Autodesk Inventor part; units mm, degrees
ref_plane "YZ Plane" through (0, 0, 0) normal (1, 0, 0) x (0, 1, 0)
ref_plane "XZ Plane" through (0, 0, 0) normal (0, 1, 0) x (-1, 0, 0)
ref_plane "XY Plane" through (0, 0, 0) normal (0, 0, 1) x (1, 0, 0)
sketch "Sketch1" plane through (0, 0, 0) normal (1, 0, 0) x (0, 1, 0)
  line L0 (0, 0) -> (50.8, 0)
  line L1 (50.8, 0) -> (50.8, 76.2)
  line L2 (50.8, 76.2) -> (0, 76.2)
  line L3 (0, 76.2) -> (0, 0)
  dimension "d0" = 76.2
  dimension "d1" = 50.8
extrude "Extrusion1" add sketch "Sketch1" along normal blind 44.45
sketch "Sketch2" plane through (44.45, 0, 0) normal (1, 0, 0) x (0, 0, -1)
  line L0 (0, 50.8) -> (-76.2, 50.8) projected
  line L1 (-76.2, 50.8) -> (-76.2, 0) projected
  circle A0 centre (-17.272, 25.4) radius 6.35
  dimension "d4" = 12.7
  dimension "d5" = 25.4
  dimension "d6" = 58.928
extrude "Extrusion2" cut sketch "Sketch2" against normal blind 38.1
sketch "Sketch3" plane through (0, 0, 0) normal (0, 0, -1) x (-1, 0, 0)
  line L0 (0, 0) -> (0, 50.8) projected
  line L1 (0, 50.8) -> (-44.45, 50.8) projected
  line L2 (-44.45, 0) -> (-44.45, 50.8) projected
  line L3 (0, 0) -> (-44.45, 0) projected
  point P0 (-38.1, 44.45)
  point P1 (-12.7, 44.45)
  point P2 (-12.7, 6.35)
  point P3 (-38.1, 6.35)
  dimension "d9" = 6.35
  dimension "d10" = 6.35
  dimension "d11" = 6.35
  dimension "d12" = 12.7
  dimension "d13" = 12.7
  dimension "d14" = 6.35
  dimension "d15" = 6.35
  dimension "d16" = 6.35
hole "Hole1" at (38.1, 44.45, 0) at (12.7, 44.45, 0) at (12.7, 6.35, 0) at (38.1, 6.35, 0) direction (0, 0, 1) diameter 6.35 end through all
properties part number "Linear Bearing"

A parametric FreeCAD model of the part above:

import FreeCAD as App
import Part
import Sketcher

V = App.Vector
Q = App.Units.Quantity


def add_polygon(sketch, points):
    """Adds a closed chain of lines whose ends are joined by coincident constraints."""
    first, n = sketch.GeometryCount, len(points)
    for a, b in zip(points, points[1:] + points[:1]):
        sketch.addGeometry(Part.LineSegment(App.Vector(*a, 0), App.Vector(*b, 0)), False)
    for i in range(n):
        sketch.addConstraint(Sketcher.Constraint("Coincident", first + i, 2, first + (i + 1) % n, 1))

doc = App.newDocument("Part")
params = doc.addObject("Spreadsheet::Sheet", "Params")
for row, (alias, value) in enumerate([
    ("sketch1_width", "2 in"),
    ("sketch1_height", "3 in"),
    ("pad1_length", "1.75 in"),
    ("sketch2_diameter", "0.5 in"),
    ("pocket1_length", "1.5 in"),
    ("sketch3_diameter", "0.25 in"),
    ("hole_diameter", "0.25 in"),
], start=1):
    params.set(f"A{row}", alias)
    params.set(f"B{row}", "=" + value)
    params.setAlias(f"B{row}", alias)

body = doc.addObject("PartDesign::Body", "Body")

sketch1 = doc.addObject("Sketcher::SketchObject", "Sketch")
body.addObject(sketch1)
sketch1.AttachmentSupport = (doc.YZ_Plane, [""])
sketch1.MapMode = "FlatFace"
add_polygon(sketch1, [(0, 76), (0, 0), (51, 0), (51, 76)])
sketch1.addConstraint([
    Sketcher.Constraint("Vertical", 0),
    Sketcher.Constraint("Horizontal", 1),
    Sketcher.Constraint("Vertical", 2),
    Sketcher.Constraint("Horizontal", 3),
    Sketcher.Constraint("Coincident", 0, 2, -1, 1),
    Sketcher.Constraint("DistanceX", 1, 1, 1, 2, Q("2 in")),
    Sketcher.Constraint("DistanceY", 0, 2, 0, 1, Q("3 in")),
])
sketch1.setExpression("Constraints[9]", "Params.sketch1_width")
sketch1.setExpression("Constraints[10]", "Params.sketch1_height")
pad1 = doc.addObject("PartDesign::Pad", "Pad")
body.addObject(pad1)
pad1.Profile = sketch1
pad1.setExpression("Length", "Params.pad1_length")

sketch2 = doc.addObject("Sketcher::SketchObject", "Sketch001")
body.addObject(sketch2)
sketch2.AttachmentSupport = (doc.YZ_Plane, [""])
sketch2.MapMode = "FlatFace"
sketch2.AttachmentOffset = App.Placement(V(0, 0, 1.75 * 25.4), App.Rotation())
sketch2.addGeometry(Part.Circle(V(25, 17, 0), V(0, 0, 1), 6), False)
sketch2.addConstraint([
    Sketcher.Constraint("Diameter", 0, Q("0.5 in")),
    Sketcher.Constraint("DistanceX", -1, 1, 0, 3, Q("1 in")),
    Sketcher.Constraint("DistanceY", -1, 1, 0, 3, Q("0.68 in")),
])
sketch2.setExpression("Constraints[0]", "Params.sketch2_diameter")
pocket1 = doc.addObject("PartDesign::Pocket", "Pocket")
body.addObject(pocket1)
pocket1.Profile = sketch2
pocket1.setExpression("Length", "Params.pocket1_length")

sketch3 = doc.addObject("Sketcher::SketchObject", "Sketch002")
body.addObject(sketch3)
sketch3.AttachmentSupport = (doc.XY_Plane, [""])
sketch3.MapMode = "FlatFace"
sketch3.addGeometry([
    Part.Circle(V(38.1, 44.5, 0), V(0, 0, 1), 3.2),
    Part.Circle(V(12.7, 44.5, 0), V(0, 0, 1), 3.2),
    Part.Circle(V(12.7, 6.3, 0), V(0, 0, 1), 3.2),
    Part.Circle(V(38.1, 6.3, 0), V(0, 0, 1), 3.2),
], False)
sketch3.addConstraint([
    Sketcher.Constraint("Equal", 0, 1),
    Sketcher.Constraint("Equal", 1, 2),
    Sketcher.Constraint("Equal", 2, 3),
    Sketcher.Constraint("Horizontal", 0, 3, 1, 3),
    Sketcher.Constraint("Horizontal", 2, 3, 3, 3),
    Sketcher.Constraint("Vertical", 1, 3, 2, 3),
    Sketcher.Constraint("Vertical", 0, 3, 3, 3),
    Sketcher.Constraint("Diameter", 0, Q("0.25 in")),
    Sketcher.Constraint("DistanceX", 1, 3, 0, 3, Q("1 in")),
    Sketcher.Constraint("DistanceX", -1, 1, 0, 3, Q("1.5 in")),
    Sketcher.Constraint("DistanceY", 2, 3, 1, 3, Q("1.5 in")),
    Sketcher.Constraint("DistanceY", -1, 1, 0, 3, Q("1.75 in")),
])
sketch3.setExpression("Constraints[7]", "Params.sketch3_diameter")
doc.recompute()
hole = doc.addObject("PartDesign::Hole", "Hole")
body.addObject(hole)
hole.Profile = sketch3
hole.ThreadType = "None"
hole.setExpression("Diameter", "Params.hole_diameter")
hole.DepthType = "ThroughAll"
hole.Reversed = True

doc.recompute()
